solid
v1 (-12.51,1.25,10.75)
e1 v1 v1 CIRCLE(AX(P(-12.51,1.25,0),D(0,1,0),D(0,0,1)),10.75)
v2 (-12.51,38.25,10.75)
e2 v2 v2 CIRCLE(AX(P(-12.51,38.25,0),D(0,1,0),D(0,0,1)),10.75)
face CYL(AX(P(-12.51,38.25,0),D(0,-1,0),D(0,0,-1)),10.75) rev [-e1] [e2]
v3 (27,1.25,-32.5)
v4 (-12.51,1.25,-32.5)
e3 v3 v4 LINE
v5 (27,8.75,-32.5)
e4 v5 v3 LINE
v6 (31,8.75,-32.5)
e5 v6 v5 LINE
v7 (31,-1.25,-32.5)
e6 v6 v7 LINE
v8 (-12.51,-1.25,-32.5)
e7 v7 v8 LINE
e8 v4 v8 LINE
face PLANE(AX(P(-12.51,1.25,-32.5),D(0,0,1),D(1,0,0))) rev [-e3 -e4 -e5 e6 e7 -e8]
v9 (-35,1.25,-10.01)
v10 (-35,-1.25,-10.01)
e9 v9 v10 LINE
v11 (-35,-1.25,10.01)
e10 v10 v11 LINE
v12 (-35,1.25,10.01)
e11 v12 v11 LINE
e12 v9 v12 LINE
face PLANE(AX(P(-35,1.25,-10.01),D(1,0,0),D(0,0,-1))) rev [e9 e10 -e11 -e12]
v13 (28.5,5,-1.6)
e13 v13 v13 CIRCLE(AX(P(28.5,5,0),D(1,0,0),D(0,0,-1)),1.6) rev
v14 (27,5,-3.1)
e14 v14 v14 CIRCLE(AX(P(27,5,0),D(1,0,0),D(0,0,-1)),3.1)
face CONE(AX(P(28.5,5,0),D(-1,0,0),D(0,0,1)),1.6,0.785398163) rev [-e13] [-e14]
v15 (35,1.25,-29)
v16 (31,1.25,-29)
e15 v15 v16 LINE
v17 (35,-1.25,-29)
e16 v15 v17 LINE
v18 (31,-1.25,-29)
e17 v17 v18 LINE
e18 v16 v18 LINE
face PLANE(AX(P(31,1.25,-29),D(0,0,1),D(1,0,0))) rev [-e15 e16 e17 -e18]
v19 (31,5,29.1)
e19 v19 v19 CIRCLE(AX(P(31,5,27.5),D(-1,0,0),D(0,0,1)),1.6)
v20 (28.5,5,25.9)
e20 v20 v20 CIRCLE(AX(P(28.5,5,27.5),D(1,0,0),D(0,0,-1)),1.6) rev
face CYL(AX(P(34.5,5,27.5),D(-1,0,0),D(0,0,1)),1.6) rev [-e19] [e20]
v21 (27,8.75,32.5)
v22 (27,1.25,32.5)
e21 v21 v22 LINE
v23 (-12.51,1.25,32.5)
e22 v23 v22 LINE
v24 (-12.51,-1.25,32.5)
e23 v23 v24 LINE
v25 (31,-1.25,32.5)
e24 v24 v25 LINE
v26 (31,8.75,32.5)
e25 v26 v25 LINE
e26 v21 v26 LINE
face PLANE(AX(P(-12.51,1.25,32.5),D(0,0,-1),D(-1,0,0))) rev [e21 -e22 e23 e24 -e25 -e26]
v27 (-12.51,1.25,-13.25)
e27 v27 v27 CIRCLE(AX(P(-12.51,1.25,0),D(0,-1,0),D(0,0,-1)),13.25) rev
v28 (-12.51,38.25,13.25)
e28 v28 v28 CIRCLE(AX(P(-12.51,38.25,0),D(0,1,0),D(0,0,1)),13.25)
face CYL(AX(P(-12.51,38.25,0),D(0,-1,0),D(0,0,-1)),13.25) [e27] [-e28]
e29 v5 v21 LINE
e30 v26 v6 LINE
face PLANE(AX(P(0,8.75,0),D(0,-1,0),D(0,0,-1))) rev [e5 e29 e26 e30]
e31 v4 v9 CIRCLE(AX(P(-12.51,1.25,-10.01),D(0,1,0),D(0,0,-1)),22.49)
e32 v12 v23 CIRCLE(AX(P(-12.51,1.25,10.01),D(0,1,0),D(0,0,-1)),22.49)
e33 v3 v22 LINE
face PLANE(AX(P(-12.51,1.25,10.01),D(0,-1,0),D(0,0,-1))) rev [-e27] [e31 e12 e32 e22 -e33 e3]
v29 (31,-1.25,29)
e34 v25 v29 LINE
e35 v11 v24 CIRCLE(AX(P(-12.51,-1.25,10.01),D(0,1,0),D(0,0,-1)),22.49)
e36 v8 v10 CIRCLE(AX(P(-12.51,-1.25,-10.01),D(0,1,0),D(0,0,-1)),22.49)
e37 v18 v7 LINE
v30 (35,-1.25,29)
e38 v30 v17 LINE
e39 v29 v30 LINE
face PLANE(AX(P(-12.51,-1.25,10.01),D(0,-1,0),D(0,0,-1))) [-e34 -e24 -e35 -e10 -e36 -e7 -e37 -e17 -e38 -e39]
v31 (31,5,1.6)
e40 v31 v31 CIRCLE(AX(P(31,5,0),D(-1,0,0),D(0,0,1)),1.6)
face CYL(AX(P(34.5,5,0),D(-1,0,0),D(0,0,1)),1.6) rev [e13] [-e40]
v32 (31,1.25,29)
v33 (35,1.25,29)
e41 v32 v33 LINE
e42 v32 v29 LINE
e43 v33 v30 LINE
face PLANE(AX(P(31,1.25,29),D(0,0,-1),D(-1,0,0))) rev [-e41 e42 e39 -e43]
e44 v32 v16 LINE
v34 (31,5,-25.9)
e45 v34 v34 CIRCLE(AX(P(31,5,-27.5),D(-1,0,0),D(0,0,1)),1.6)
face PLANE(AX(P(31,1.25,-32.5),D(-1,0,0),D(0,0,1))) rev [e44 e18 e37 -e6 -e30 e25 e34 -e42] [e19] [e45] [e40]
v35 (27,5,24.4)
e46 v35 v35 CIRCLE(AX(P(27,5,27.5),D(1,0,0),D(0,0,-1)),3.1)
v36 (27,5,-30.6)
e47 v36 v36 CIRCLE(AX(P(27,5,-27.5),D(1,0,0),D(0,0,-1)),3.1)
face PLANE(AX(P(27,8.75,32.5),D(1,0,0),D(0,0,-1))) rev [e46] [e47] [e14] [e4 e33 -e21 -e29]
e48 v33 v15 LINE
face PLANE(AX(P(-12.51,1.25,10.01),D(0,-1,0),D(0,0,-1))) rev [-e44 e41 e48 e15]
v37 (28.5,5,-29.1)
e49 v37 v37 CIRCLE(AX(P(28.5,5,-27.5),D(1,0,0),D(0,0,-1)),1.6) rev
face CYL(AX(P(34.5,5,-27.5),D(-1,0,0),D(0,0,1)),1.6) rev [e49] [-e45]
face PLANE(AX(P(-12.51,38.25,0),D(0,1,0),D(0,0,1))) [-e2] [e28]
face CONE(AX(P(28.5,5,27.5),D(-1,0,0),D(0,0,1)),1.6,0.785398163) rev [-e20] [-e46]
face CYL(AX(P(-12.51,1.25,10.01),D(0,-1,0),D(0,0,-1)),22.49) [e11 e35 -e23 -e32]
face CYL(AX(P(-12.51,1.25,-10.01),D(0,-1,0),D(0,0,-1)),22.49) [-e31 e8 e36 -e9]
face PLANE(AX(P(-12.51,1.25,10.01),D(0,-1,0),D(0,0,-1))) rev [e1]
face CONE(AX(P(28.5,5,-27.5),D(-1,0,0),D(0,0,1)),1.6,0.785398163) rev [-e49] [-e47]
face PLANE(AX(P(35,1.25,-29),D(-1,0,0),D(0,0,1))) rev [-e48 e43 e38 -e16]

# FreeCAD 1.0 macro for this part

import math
import FreeCAD as App
import Part
import Sketcher

V = App.Vector
Q = App.Units.Quantity


def edges_at(feature, points):
    """Names of the edges that pass closest to the given points."""
    edges = feature.Shape.Edges
    near = lambda p: min(range(len(edges)), key=lambda i: edges[i].distToShape(Part.Vertex(*p))[0])
    return sorted({f"Edge{near(p) + 1}" for p in points})


def add_polygon(sketch, points):
    """Adds a closed chain of lines whose ends are joined by coincident constraints."""
    first, n = sketch.GeometryCount, len(points)
    for a, b in zip(points, points[1:] + points[:1]):
        sketch.addGeometry(Part.LineSegment(App.Vector(*a, 0), App.Vector(*b, 0)), False)
    for i in range(n):
        sketch.addConstraint(Sketcher.Constraint("Coincident", first + i, 2, first + (i + 1) % n, 1))

doc = App.newDocument("Part")
body = doc.addObject("PartDesign::Body", "Body")

# Sketch on XZ plane
sketch1 = body.newObject("Sketcher::SketchObject", "Sketch")
sketch1.AttachmentSupport = (doc.getObject("XZ_Plane"), [""])
sketch1.MapMode = "FlatFace"
sketch1.addGeometry([
    Part.LineSegment(V(31, -29, 0), V(31, -32.5, 0)),  # 0
    Part.LineSegment(V(31, -32.5, 0), V(-12.51, -32.5, 0)),  # 1
    Part.ArcOfCircle(Part.Circle(V(-12.51, -10.01, 0), V(0, 0, 1), 22.49), math.radians(180), math.radians(270)),  # 2
    Part.LineSegment(V(-35, -10.01, 0), V(-35, 10.01, 0)),  # 3
    Part.ArcOfCircle(Part.Circle(V(-12.51, 10.01, 0), V(0, 0, 1), 22.49), math.radians(90), math.radians(180)),  # 4
    Part.LineSegment(V(-12.51, 32.5, 0), V(31, 32.5, 0)),  # 5
    Part.LineSegment(V(31, 32.5, 0), V(31, 29, 0)),  # 6
    Part.LineSegment(V(31, 29, 0), V(35, 29, 0)),  # 7
    Part.LineSegment(V(35, 29, 0), V(35, -29, 0)),  # 8
    Part.LineSegment(V(35, -29, 0), V(31, -29, 0)),  # 9
], False)
sketch1.addConstraint([
    Sketcher.Constraint("Coincident", 0, 2, 1, 1),
    Sketcher.Constraint("Tangent", 1, 2, 2, 2),
    Sketcher.Constraint("Tangent", 2, 1, 3, 1),
    Sketcher.Constraint("Tangent", 3, 2, 4, 2),
    Sketcher.Constraint("Tangent", 4, 1, 5, 1),
    Sketcher.Constraint("Coincident", 5, 2, 6, 1),
    Sketcher.Constraint("Coincident", 6, 2, 7, 1),
    Sketcher.Constraint("Coincident", 7, 2, 8, 1),
    Sketcher.Constraint("Coincident", 8, 2, 9, 1),
    Sketcher.Constraint("Coincident", 9, 2, 0, 1),
    Sketcher.Constraint("Vertical", 0),
    Sketcher.Constraint("Horizontal", 1),
    Sketcher.Constraint("Vertical", 3),
    Sketcher.Constraint("Horizontal", 5),
    Sketcher.Constraint("Vertical", 6),
    Sketcher.Constraint("Horizontal", 7),
    Sketcher.Constraint("Vertical", 8),
    Sketcher.Constraint("Horizontal", 9),
    Sketcher.Constraint("Equal", 2, 4),
    Sketcher.Constraint("Symmetric", 0, 2, 5, 2, -1),
    Sketcher.Constraint("Equal", 0, 6),
    Sketcher.Constraint("DistanceX", 7, 1, 7, 2, Q("4 mm")),
    Sketcher.Constraint("DistanceY", 8, 2, 8, 1, Q("58 mm")),
    Sketcher.Constraint("Radius", 2, Q("22.49 mm")),
    Sketcher.Constraint("DistanceY", 0, 2, 0, 1, Q("3.5 mm")),
    Sketcher.Constraint("DistanceX", -1, 1, 0, 2, Q("31 mm")),
    Sketcher.Constraint("DistanceX", 2, 1, -1, 1, Q("35 mm")),
])
pad1 = body.newObject("PartDesign::Pad", "Pad")
pad1.Profile = sketch1
pad1.Length = 2.5
pad1.Midplane = True

# Sketch on XZ plane
sketch2 = body.newObject("Sketcher::SketchObject", "Sketch001")
sketch2.AttachmentSupport = (doc.getObject("XZ_Plane"), [""])
sketch2.MapMode = "FlatFace"
sketch2.AttachmentOffset = App.Placement(V(0, 0, -1.25), App.Rotation())
sketch2.addGeometry([
    Part.Circle(V(-12.51, 0, 0), V(0, 0, 1), 13.25),
    Part.Circle(V(-12.51, 0, 0), V(0, 0, 1), 10.75),
], False)
sketch2.addConstraint([
    Sketcher.Constraint("Coincident", 1, 3, 0, 3),
    Sketcher.Constraint("PointOnObject", 0, 3, -1),
    Sketcher.Constraint("Diameter", 0, Q("26.5 mm")),
    Sketcher.Constraint("Diameter", 1, Q("21.5 mm")),
    Sketcher.Constraint("DistanceX", 0, 3, -1, 1, Q("12.51 mm")),
])
pad2 = body.newObject("PartDesign::Pad", "Pad001")
pad2.Profile = sketch2
pad2.Length = 37
pad2.Reversed = True

# Sketch on XZ plane
sketch3 = body.newObject("Sketcher::SketchObject", "Sketch002")
sketch3.AttachmentSupport = (doc.getObject("XZ_Plane"), [""])
sketch3.MapMode = "FlatFace"
sketch3.AttachmentOffset = App.Placement(V(0, 0, -1.25), App.Rotation())
add_polygon(sketch3, [(27, -32.5), (27, 32.5), (31, 32.5), (31, -32.5)])  # lines 0-3
sketch3.addConstraint([
    Sketcher.Constraint("Vertical", 0),
    Sketcher.Constraint("Horizontal", 1),
    Sketcher.Constraint("Vertical", 2),
    Sketcher.Constraint("Horizontal", 3),
    Sketcher.Constraint("DistanceX", 1, 1, 1, 2, Q("4 mm")),
    Sketcher.Constraint("DistanceY", 0, 1, 0, 2, Q("65 mm")),
    Sketcher.Constraint("DistanceX", -1, 1, 0, 2, Q("27 mm")),
    Sketcher.Constraint("DistanceY", -1, 1, 0, 2, Q("32.5 mm")),
])
pad3 = body.newObject("PartDesign::Pad", "Pad002")
pad3.Profile = sketch3
pad3.Length = 7.5
pad3.Reversed = True

# Sketch on YZ plane
sketch4 = body.newObject("Sketcher::SketchObject", "Sketch003")
sketch4.AttachmentSupport = (doc.getObject("YZ_Plane"), [""])
sketch4.MapMode = "FlatFace"
sketch4.AttachmentOffset = App.Placement(V(0, 0, 27), App.Rotation())
sketch4.addGeometry([
    Part.Circle(V(5, -27.5, 0), V(0, 0, 1), 1.6),
    Part.Circle(V(5, 0, 0), V(0, 0, 1), 1.6),
    Part.Circle(V(5, 27.5, 0), V(0, 0, 1), 1.6),
], False)
sketch4.addConstraint([
    Sketcher.Constraint("Equal", 0, 1),
    Sketcher.Constraint("Equal", 1, 2),
    Sketcher.Constraint("Symmetric", 0, 3, 2, 3, -1),
    Sketcher.Constraint("PointOnObject", 1, 3, -1),
    Sketcher.Constraint("Vertical", 0, 3, 1, 3),
    Sketcher.Constraint("Diameter", 0, Q("3.2 mm")),
    Sketcher.Constraint("DistanceX", -1, 1, 0, 3, Q("5 mm")),
    Sketcher.Constraint("DistanceY", 0, 3, 2, 3, Q("55 mm")),
])
pocket1 = body.newObject("PartDesign::Pocket", "Pocket")
pocket1.Profile = sketch4
pocket1.Length = 7.5
pocket1.Reversed = True
doc.recompute()

chamfer = body.newObject("PartDesign::Chamfer", "Chamfer")
chamfer.Base = (pocket1, edges_at(pocket1, [(27, 5, -29.1), (27, 5, -1.6), (27, 5, 25.9)]))
chamfer.Size = 1.5

doc.recompute()
